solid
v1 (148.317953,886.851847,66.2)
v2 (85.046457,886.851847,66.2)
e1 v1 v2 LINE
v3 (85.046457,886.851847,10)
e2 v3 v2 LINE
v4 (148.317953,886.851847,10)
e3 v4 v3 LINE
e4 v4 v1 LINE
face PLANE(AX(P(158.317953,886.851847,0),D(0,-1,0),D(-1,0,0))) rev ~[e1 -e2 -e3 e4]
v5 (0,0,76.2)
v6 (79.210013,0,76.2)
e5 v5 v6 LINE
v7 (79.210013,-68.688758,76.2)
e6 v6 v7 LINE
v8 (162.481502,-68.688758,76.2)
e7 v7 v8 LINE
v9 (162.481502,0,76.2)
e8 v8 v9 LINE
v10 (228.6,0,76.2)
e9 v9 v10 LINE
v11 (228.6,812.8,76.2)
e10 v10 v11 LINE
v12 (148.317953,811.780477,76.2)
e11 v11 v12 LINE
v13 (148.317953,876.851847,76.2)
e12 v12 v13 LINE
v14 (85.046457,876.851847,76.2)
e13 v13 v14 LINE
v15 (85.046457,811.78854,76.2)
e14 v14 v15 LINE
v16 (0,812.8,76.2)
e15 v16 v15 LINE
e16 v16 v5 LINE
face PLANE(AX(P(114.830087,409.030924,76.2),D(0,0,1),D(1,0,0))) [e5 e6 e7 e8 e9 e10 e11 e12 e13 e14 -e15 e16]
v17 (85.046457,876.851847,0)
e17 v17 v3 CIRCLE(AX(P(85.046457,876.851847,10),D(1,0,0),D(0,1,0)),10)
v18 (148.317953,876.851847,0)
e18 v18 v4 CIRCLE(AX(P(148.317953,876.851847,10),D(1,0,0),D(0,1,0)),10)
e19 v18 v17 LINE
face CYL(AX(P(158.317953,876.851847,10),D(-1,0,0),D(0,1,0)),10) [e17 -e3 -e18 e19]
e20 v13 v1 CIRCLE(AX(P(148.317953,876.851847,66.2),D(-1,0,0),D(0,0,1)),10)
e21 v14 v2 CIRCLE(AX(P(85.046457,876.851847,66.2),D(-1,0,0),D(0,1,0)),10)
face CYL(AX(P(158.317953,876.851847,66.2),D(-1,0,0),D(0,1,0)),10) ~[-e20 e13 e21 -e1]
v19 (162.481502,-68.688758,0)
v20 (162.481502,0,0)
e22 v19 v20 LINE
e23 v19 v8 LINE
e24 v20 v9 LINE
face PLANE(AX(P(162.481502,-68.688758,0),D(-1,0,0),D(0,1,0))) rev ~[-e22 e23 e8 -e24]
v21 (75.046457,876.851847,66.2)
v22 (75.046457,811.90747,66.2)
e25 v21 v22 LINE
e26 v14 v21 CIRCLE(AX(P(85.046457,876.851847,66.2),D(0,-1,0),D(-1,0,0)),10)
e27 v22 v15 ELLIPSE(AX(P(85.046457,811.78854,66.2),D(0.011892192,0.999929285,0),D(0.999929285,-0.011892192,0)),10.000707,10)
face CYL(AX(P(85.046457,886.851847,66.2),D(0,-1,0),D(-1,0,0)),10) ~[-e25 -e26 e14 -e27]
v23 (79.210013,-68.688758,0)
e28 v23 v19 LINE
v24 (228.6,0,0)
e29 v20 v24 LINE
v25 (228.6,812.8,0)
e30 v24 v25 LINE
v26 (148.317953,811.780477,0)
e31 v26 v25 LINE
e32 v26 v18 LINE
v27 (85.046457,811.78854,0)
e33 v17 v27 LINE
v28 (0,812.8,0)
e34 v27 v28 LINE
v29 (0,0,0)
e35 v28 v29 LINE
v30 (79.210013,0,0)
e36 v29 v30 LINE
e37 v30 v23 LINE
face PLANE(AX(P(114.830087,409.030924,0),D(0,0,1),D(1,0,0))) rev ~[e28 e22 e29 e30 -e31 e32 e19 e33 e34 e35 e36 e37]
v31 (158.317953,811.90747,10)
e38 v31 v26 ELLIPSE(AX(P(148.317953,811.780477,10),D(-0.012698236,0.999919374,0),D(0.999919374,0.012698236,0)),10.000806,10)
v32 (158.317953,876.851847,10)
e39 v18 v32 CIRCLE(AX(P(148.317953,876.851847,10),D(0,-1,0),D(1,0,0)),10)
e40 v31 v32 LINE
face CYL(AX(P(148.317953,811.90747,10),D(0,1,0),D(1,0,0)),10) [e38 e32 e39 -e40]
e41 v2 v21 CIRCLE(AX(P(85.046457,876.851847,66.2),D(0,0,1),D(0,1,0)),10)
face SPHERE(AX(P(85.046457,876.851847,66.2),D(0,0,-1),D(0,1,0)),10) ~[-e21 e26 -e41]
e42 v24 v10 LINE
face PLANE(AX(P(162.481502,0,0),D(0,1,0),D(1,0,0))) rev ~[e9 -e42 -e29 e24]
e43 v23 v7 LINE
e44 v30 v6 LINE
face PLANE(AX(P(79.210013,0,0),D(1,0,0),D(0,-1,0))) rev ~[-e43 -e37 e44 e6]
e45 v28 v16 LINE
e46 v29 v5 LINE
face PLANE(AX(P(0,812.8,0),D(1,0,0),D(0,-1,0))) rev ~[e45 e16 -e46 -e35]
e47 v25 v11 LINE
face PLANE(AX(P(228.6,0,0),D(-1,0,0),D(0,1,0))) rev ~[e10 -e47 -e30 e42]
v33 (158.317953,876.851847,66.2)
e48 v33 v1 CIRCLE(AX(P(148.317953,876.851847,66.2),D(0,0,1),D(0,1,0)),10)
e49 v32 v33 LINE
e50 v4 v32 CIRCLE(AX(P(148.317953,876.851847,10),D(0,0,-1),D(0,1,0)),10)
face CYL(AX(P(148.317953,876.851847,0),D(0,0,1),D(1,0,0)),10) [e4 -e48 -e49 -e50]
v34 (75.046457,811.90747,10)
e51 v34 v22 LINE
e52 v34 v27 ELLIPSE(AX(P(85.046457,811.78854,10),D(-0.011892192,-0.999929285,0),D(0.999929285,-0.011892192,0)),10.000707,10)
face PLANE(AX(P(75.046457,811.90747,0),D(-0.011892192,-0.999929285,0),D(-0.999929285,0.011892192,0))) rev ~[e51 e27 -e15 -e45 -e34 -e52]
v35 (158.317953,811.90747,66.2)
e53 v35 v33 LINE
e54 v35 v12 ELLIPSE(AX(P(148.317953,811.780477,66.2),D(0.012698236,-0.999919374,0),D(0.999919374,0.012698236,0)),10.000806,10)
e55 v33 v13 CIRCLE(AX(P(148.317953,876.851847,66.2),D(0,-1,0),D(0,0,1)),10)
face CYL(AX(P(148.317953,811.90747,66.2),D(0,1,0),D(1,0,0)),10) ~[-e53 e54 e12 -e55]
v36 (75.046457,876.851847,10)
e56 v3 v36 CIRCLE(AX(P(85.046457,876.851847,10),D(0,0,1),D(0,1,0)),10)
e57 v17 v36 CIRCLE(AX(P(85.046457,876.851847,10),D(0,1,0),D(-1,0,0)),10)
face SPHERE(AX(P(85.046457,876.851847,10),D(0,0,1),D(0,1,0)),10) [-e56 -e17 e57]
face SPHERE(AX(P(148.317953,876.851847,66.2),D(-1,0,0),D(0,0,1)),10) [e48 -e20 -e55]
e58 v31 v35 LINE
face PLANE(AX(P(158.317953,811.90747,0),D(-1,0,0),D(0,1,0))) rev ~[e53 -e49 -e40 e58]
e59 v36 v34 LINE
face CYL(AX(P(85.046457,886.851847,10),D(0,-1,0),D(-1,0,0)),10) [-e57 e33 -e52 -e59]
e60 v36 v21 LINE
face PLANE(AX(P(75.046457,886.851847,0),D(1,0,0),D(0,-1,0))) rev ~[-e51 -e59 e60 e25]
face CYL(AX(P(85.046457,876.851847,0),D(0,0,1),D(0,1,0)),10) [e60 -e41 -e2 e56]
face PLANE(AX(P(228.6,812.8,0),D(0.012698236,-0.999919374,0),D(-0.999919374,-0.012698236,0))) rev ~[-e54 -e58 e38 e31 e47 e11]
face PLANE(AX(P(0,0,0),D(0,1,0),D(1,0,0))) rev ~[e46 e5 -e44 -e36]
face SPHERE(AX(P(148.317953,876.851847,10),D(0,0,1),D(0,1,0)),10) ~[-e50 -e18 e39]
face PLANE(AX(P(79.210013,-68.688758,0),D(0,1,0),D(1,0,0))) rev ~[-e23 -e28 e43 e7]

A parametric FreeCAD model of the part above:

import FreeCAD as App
import Part
import Sketcher

V = App.Vector
Q = App.Units.Quantity


def edges_at(feature, points):
    """Names of the edges that pass closest to the given points."""
    edges = feature.Shape.Edges
    near = lambda p: min(range(len(edges)), key=lambda i: edges[i].distToShape(Part.Vertex(*p))[0])
    return sorted({f"Edge{near(p) + 1}" for p in points})


def add_polygon(sketch, points):
    """Adds a closed chain of lines whose ends are joined by coincident constraints."""
    first, n = sketch.GeometryCount, len(points)
    for a, b in zip(points, points[1:] + points[:1]):
        sketch.addGeometry(Part.LineSegment(App.Vector(*a, 0), App.Vector(*b, 0)), False)
    for i in range(n):
        sketch.addConstraint(Sketcher.Constraint("Coincident", first + i, 2, first + (i + 1) % n, 1))

doc = App.newDocument("Part")
body = doc.addObject("PartDesign::Body", "Body")

# Sketch on XY plane
sketch1 = doc.addObject("Sketcher::SketchObject", "Sketch")
body.addObject(sketch1)
sketch1.AttachmentSupport = (doc.XY_Plane, [""])
sketch1.MapMode = "FlatFace"
add_polygon(sketch1, [(75, 812), (0, 813), (0, 0), (79, 0), (79, -69), (162, -69), (162, 0), (229, 0), (229, 813), (158, 812), (158, 887), (75, 887)])  # lines 0-11
sketch1.addConstraint([
    Sketcher.Constraint("Vertical", 1),
    Sketcher.Constraint("Horizontal", 2),
    Sketcher.Constraint("Vertical", 3),
    Sketcher.Constraint("Horizontal", 4),
    Sketcher.Constraint("Vertical", 5),
    Sketcher.Constraint("Horizontal", 6),
    Sketcher.Constraint("Vertical", 7),
    Sketcher.Constraint("Vertical", 9),
    Sketcher.Constraint("Horizontal", 10),
    Sketcher.Constraint("Vertical", 11),
    Sketcher.Constraint("Coincident", 1, 2, -1, 1),
    Sketcher.Constraint("PointOnObject", 5, 2, -1),
    Sketcher.Constraint("Horizontal", 0, 2, 7, 2),
    Sketcher.Constraint("Horizontal", 8, 2, 11, 2),
    Sketcher.Constraint("DistanceY", 1, 2, 1, 1, Q("32 in")),
    Sketcher.Constraint("DistanceX", -1, 1, 6, 2, Q("9 in")),
    Sketcher.Constraint("DistanceX", 4, 1, 4, 2, 83.271489),
    Sketcher.Constraint("DistanceY", 3, 2, 3, 1, 68.688758),
    Sketcher.Constraint("DistanceX", -1, 1, 4, 2, 162.481502),
    Sketcher.Constraint("DistanceX", 10, 2, 10, 1, 83.271496),
    Sketcher.Constraint("DistanceY", 9, 1, 9, 2, 74.944377),
    Sketcher.Constraint("DistanceY", -1, 1, 8, 2, 811.90747),
    Sketcher.Constraint("DistanceX", 8, 2, 5, 2, 4.163549),
])
pad1 = doc.addObject("PartDesign::Pad", "Pad")
body.addObject(pad1)
pad1.Profile = sketch1
pad1.Length = Q("3 in")
doc.recompute()

fillet = doc.addObject("PartDesign::Fillet", "Fillet")
body.addObject(fillet)
fillet.Base = (pad1, edges_at(pad1, [
    (75.046, 886.852, 38.1),
    (116.682, 886.852, 76.2),
    (75.046, 849.38, 76.2),
    (158.318, 849.38, 76.2),
    (158.318, 886.852, 38.1),
    (116.682, 886.852, 0),
    (75.046, 849.38, 0),
    (158.318, 849.38, 0),
]))
fillet.Radius = 10

doc.recompute()
